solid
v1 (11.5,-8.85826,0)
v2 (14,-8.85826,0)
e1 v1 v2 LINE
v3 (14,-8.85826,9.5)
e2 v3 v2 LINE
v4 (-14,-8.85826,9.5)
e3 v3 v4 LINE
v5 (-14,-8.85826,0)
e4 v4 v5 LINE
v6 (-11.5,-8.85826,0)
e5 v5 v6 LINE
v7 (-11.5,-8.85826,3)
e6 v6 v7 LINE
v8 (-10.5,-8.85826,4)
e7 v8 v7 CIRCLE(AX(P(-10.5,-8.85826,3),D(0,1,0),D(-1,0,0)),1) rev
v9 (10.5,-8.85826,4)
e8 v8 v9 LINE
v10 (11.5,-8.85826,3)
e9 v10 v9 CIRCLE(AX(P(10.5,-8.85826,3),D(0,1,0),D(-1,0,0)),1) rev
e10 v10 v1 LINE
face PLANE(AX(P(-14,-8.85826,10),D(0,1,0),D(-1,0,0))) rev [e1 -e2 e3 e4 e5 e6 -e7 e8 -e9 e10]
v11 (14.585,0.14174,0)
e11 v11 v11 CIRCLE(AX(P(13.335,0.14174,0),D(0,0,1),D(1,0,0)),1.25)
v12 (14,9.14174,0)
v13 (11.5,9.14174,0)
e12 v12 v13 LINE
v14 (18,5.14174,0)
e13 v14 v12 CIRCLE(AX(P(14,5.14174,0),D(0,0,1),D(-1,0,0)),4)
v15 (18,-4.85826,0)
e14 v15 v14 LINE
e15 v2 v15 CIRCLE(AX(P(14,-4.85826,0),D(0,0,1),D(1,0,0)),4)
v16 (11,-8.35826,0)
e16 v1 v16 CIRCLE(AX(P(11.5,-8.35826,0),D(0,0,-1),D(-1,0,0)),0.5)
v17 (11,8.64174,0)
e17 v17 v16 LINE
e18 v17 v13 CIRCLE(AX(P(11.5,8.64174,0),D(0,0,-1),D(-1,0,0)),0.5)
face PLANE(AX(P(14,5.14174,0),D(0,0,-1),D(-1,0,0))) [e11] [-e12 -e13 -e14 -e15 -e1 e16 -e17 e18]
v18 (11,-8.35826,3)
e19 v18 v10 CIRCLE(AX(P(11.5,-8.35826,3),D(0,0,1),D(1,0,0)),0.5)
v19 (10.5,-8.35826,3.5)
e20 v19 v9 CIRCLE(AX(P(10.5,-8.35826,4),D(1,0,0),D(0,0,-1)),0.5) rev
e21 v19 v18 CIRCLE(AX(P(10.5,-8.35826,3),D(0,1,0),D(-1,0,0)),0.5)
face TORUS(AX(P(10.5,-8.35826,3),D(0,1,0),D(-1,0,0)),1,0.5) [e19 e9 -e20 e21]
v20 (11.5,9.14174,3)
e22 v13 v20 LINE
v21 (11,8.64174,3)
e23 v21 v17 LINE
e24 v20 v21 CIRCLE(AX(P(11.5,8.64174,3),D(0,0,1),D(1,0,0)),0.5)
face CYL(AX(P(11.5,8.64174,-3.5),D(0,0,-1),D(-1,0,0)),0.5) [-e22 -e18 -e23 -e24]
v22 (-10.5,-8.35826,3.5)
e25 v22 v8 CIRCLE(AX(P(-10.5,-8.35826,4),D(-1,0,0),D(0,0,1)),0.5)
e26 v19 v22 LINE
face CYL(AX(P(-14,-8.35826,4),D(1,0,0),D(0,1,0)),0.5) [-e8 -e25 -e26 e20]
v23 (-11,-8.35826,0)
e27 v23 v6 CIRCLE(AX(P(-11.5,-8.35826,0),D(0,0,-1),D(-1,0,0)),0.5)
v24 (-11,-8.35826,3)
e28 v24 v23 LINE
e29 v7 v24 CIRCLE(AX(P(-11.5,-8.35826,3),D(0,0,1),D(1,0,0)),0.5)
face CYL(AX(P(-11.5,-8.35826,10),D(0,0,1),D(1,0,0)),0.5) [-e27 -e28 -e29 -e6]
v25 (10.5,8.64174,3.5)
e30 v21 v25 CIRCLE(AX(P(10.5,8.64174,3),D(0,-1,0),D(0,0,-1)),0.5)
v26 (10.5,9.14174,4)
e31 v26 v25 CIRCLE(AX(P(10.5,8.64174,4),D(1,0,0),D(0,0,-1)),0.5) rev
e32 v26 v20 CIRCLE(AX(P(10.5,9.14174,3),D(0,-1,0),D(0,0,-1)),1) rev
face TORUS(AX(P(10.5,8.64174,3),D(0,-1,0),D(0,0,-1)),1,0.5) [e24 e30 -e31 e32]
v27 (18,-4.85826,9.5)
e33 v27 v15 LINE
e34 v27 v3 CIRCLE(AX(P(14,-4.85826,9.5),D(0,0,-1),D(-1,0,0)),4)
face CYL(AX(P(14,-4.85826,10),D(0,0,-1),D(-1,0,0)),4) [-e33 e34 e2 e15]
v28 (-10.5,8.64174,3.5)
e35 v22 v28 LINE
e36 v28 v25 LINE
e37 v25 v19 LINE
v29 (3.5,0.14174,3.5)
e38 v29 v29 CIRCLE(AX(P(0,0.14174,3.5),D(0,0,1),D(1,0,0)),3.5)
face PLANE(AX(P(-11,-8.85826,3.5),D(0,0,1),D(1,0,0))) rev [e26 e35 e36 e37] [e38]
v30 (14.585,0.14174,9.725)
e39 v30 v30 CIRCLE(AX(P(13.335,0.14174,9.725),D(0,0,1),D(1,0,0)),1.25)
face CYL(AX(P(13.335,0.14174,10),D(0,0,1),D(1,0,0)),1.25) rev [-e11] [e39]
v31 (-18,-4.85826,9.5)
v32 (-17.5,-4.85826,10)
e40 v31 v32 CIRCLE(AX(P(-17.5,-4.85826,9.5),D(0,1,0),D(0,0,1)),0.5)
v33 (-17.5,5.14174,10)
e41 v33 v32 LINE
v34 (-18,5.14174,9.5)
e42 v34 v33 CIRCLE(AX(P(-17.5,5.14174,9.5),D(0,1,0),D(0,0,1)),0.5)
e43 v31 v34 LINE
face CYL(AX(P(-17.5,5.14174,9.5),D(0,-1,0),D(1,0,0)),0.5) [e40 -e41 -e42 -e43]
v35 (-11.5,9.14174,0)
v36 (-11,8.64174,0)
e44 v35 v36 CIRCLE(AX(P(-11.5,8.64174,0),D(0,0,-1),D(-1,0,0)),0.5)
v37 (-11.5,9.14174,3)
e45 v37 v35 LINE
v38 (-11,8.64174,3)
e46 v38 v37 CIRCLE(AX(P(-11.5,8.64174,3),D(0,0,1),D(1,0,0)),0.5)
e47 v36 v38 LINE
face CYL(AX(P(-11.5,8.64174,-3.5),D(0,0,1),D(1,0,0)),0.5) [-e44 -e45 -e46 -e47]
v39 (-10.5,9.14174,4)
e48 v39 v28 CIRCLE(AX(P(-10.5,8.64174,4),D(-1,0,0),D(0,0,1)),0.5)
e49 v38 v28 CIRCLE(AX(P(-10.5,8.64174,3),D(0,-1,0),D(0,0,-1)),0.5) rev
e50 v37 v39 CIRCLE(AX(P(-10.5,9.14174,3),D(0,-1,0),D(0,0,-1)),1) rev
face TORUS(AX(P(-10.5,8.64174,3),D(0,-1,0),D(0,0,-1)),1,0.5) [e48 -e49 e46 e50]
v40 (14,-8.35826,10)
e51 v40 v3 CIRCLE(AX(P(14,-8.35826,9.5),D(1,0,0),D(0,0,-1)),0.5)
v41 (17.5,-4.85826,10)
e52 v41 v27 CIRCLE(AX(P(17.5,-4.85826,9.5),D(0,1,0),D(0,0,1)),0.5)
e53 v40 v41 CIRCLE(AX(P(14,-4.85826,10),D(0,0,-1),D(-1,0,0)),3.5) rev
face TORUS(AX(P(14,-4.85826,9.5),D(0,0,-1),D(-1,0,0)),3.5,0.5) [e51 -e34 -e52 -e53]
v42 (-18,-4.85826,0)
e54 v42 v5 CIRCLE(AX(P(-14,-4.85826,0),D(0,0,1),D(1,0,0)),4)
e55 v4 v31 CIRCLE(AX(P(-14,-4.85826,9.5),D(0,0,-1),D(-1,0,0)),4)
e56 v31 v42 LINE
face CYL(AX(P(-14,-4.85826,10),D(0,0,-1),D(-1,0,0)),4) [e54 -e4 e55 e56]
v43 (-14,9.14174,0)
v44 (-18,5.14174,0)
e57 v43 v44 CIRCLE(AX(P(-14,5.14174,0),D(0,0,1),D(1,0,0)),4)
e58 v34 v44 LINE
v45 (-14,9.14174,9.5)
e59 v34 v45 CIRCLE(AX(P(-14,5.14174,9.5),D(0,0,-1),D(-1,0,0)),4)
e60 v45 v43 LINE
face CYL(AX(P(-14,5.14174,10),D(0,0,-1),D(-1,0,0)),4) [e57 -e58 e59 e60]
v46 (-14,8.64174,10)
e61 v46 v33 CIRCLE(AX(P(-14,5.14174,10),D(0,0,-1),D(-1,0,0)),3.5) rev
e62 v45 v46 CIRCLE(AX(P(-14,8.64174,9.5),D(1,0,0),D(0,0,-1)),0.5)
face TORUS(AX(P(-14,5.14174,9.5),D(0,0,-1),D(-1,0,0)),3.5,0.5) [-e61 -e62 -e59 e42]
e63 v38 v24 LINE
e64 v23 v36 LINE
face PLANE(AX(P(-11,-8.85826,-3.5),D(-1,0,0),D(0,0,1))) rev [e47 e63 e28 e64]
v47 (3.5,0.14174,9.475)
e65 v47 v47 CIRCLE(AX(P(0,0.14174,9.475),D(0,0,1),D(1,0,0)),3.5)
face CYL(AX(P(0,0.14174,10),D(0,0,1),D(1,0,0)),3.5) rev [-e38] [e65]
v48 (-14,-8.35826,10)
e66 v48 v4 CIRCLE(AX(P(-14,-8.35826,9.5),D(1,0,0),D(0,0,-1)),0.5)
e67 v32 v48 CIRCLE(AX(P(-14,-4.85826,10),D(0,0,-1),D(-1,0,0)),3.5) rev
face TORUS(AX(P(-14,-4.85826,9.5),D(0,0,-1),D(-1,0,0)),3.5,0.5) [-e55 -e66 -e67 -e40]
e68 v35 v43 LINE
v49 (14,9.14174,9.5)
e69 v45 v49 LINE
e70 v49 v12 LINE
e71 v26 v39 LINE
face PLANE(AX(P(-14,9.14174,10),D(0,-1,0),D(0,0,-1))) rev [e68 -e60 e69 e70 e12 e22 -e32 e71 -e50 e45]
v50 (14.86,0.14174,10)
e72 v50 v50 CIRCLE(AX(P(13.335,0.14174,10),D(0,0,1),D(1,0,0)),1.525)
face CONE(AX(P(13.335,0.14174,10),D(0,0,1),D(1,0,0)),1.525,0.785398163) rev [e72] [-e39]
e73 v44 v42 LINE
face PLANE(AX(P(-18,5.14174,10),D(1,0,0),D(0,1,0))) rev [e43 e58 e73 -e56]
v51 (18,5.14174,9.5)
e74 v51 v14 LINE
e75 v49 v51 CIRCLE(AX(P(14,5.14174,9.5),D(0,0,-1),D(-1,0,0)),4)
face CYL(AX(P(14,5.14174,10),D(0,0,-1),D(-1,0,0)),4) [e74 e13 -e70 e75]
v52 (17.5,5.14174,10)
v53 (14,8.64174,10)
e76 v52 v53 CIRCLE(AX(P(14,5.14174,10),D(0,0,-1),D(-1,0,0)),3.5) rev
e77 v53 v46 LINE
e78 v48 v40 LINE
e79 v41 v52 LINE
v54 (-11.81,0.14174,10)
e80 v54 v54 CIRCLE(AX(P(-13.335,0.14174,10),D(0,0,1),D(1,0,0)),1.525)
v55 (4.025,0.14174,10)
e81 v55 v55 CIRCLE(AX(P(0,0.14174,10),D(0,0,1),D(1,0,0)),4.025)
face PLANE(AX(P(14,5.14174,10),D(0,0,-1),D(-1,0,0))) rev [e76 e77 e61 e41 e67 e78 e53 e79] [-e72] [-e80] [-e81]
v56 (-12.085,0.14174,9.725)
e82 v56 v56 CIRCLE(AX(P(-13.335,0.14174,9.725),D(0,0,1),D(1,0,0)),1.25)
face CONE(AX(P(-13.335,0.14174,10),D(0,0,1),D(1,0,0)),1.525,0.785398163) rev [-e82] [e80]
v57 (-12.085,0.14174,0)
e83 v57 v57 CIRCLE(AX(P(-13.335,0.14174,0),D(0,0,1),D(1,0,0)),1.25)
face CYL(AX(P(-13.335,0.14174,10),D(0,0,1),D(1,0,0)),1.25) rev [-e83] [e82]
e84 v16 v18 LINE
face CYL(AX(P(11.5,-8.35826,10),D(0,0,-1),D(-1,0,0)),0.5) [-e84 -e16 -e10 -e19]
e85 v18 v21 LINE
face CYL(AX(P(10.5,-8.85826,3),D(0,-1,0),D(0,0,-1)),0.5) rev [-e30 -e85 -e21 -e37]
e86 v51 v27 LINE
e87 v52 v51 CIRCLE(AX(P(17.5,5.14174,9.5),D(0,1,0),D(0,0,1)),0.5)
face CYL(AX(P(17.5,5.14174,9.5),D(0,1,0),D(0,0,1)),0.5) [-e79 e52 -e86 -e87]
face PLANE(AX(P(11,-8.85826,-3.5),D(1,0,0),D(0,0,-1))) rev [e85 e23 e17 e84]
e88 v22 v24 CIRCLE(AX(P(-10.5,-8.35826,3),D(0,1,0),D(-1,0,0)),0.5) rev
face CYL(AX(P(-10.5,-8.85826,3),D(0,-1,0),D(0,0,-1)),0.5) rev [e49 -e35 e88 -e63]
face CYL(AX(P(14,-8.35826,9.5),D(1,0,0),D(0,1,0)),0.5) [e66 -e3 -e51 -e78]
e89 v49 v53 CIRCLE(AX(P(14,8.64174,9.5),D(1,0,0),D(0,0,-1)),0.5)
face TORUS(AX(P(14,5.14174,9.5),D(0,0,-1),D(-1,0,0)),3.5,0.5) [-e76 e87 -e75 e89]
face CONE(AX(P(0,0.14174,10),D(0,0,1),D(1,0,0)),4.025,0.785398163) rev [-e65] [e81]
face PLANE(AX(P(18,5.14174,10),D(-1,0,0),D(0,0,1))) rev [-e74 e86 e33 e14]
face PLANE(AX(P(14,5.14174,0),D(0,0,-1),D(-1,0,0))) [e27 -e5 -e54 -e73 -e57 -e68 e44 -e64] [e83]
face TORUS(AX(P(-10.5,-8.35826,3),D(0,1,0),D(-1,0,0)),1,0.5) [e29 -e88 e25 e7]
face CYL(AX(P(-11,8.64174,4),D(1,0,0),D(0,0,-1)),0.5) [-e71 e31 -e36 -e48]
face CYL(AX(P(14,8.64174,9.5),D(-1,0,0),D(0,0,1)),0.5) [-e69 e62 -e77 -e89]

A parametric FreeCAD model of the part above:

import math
import FreeCAD as App
import Part
import Sketcher
from FreeCAD import Vector


def edges_at(feature, points):
    """Names of the edges that pass closest to the given points."""
    edges = feature.Shape.Edges
    near = lambda p: min(range(len(edges)), key=lambda i: edges[i].distToShape(Part.Vertex(*p))[0])
    return sorted({f"Edge{near(p) + 1}" for p in points})


def add_polygon(sketch, points):
    """Adds a closed chain of lines whose ends are joined by coincident constraints."""
    first, n = sketch.GeometryCount, len(points)
    for a, b in zip(points, points[1:] + points[:1]):
        sketch.addGeometry(Part.LineSegment(App.Vector(*a, 0), App.Vector(*b, 0)), False)
    for i in range(n):
        sketch.addConstraint(Sketcher.Constraint("Coincident", first + i, 2, first + (i + 1) % n, 1))

doc = App.newDocument("Part")
params = doc.addObject("Spreadsheet::Sheet", "Params")
for row, (alias, value) in enumerate([
    ("sketch1_radius", "4 mm"),
    ("sketch1_width", "28 mm"),
    ("sketch1_height", "10 mm"),
    ("pad1_length", "10 mm"),
    ("sketch2_width", "22 mm"),
    ("sketch2_height", "7 mm"),
    ("fillet_radius", "0.5 mm"),
    ("sketch3_diameter", "2.5 mm"),
    ("hole_diameter", "2.5 mm"),
    ("hole_csink_diameter", "3.05 mm"),
    ("sketch4_diameter", "7 mm"),
    ("hole2_diameter", "7 mm"),
    ("hole2_csink_diameter", "8.05 mm"),
], start=1):
    params.set(f"A{row}", alias)
    params.set(f"B{row}", "=" + value)
    params.setAlias(f"B{row}", alias)

body = doc.addObject("PartDesign::Body", "Body")

# Sketch on XY plane
sketch1 = body.newObject("Sketcher::SketchObject", "Sketch")
sketch1.AttachmentSupport = (doc.getObject("XY_Plane"), [""])
sketch1.MapMode = "FlatFace"
sketch1.addGeometry(Part.LineSegment(Vector(14, 9.1, 0), Vector(-14, 9.1, 0)), False)
sketch1.addGeometry(Part.ArcOfCircle(Part.Circle(Vector(-14, 5.1, 0), Vector(0, 0, 1), 4), math.radians(90), math.radians(180)), False)
sketch1.addGeometry(Part.LineSegment(Vector(-18, 5.1, 0), Vector(-18, -4.9, 0)), False)
sketch1.addGeometry(Part.ArcOfCircle(Part.Circle(Vector(-14, -4.9, 0), Vector(0, 0, 1), 4), math.radians(-180), math.radians(-90)), False)
sketch1.addGeometry(Part.LineSegment(Vector(-14, -8.9, 0), Vector(14, -8.9, 0)), False)
sketch1.addGeometry(Part.ArcOfCircle(Part.Circle(Vector(14, -4.9, 0), Vector(0, 0, 1), 4), math.radians(-90), math.radians(0)), False)
sketch1.addGeometry(Part.LineSegment(Vector(18, -4.9, 0), Vector(18, 5.1, 0)), False)
sketch1.addGeometry(Part.ArcOfCircle(Part.Circle(Vector(14, 5.1, 0), Vector(0, 0, 1), 4), math.radians(0), math.radians(90)), False)
sketch1.addConstraint(Sketcher.Constraint("Tangent", 0, 2, 1, 1))
sketch1.addConstraint(Sketcher.Constraint("Tangent", 1, 2, 2, 1))
sketch1.addConstraint(Sketcher.Constraint("Tangent", 2, 2, 3, 1))
sketch1.addConstraint(Sketcher.Constraint("Tangent", 3, 2, 4, 1))
sketch1.addConstraint(Sketcher.Constraint("Tangent", 4, 2, 5, 1))
sketch1.addConstraint(Sketcher.Constraint("Tangent", 5, 2, 6, 1))
sketch1.addConstraint(Sketcher.Constraint("Tangent", 6, 2, 7, 1))
sketch1.addConstraint(Sketcher.Constraint("Tangent", 7, 2, 0, 1))
sketch1.addConstraint(Sketcher.Constraint("Horizontal", 0))
sketch1.addConstraint(Sketcher.Constraint("Vertical", 2))
sketch1.addConstraint(Sketcher.Constraint("Horizontal", 4))
sketch1.addConstraint(Sketcher.Constraint("Vertical", 6))
sketch1.addConstraint(Sketcher.Constraint("Equal", 1, 3))
sketch1.addConstraint(Sketcher.Constraint("Equal", 3, 5))
sketch1.addConstraint(Sketcher.Constraint("Equal", 5, 7))
sketch1.addConstraint(Sketcher.Constraint("Radius", 1, 4.0))
sketch1.addConstraint(Sketcher.Constraint("DistanceX", 0, 2, 0, 1, 28.0))
sketch1.addConstraint(Sketcher.Constraint("DistanceY", 2, 2, 2, 1, 10.0))
sketch1.addConstraint(Sketcher.Constraint("DistanceX", 1, 3, -1, 1, 14.0))
sketch1.addConstraint(Sketcher.Constraint("DistanceY", -1, 1, 1, 3, 5.14174))
sketch1.setExpression("Constraints[15]", "Params.sketch1_radius")
sketch1.setExpression("Constraints[16]", "Params.sketch1_width")
sketch1.setExpression("Constraints[17]", "Params.sketch1_height")
pad1 = body.newObject("PartDesign::Pad", "Pad")
pad1.Profile = sketch1
pad1.setExpression("Length", "Params.pad1_length")

# Sketch on XZ plane
sketch2 = body.newObject("Sketcher::SketchObject", "Sketch001")
sketch2.AttachmentSupport = (doc.getObject("XZ_Plane"), [""])
sketch2.MapMode = "FlatFace"
sketch2.AttachmentOffset = App.Placement(Vector(0, 0, -9.14174), App.Rotation())
add_polygon(sketch2, [(-11, -4), (-11, 4), (11, 4), (11, -4)])  # lines 0-3
sketch2.addConstraint(Sketcher.Constraint("Vertical", 0))
sketch2.addConstraint(Sketcher.Constraint("Horizontal", 1))
sketch2.addConstraint(Sketcher.Constraint("Vertical", 2))
sketch2.addConstraint(Sketcher.Constraint("Horizontal", 3))
sketch2.addConstraint(Sketcher.Constraint("Symmetric", 0, 2, 2, 2, -1, 1))
sketch2.addConstraint(Sketcher.Constraint("DistanceX", 1, 1, 1, 2, 22.0))
sketch2.addConstraint(Sketcher.Constraint("DistanceY", 0, 1, 0, 2, 7.0))
sketch2.setExpression("Constraints[9]", "Params.sketch2_width")
sketch2.setExpression("Constraints[10]", "Params.sketch2_height")
pocket1 = body.newObject("PartDesign::Pocket", "Pocket")
pocket1.Profile = sketch2
pocket1.Type = "ThroughAll"
pocket1.Reversed = True
doc.recompute()

fillet = body.newObject("PartDesign::Fillet", "Fillet")
fillet.Base = (pocket1, edges_at(pocket1, [
    (-16.828, 7.97, 10),
    (-18, 0.142, 10),
    (-16.828, -7.687, 10),
    (0, -8.858, 10),
    (16.828, -7.687, 10),
    (11, -8.858, 1.75),
    (18, 0.142, 10),
    (0, -8.858, 3.5),
    (11, 0.142, 3.5),
    (-11, -8.858, 1.75),
    (-11, 0.142, 3.5),
    (-11, 9.142, 1.75),
    (0, 9.142, 3.5),
    (11, 9.142, 1.75),
    (16.828, 7.97, 10),
    (0, 9.142, 10),
]))
fillet.setExpression("Radius", "Params.fillet_radius")

# Sketch on XY plane
sketch3 = body.newObject("Sketcher::SketchObject", "Sketch002")
sketch3.AttachmentSupport = (doc.getObject("XY_Plane"), [""])
sketch3.MapMode = "FlatFace"
sketch3.AttachmentOffset = App.Placement(Vector(0, 0, 10), App.Rotation())
sketch3.addGeometry(Part.Circle(Vector(-13.3, 0.1, 0), Vector(0, 0, 1), 1.2), False)
sketch3.addGeometry(Part.Circle(Vector(13.3, 0.1, 0), Vector(0, 0, 1), 1.2), False)
sketch3.addConstraint(Sketcher.Constraint("Equal", 0, 1))
sketch3.addConstraint(Sketcher.Constraint("Symmetric", 0, 3, 1, 3, -2))
sketch3.addConstraint(Sketcher.Constraint("Diameter", 0, 2.5))
sketch3.addConstraint(Sketcher.Constraint("DistanceX", 0, 3, 1, 3, 26.67))
sketch3.addConstraint(Sketcher.Constraint("DistanceY", -1, 1, 0, 3, 0.14174))
sketch3.setExpression("Constraints[2]", "Params.sketch3_diameter")
doc.recompute()
hole = body.newObject("PartDesign::Hole", "Hole")
hole.Profile = sketch3
hole.ThreadType = "None"
hole.setExpression("Diameter", "Params.hole_diameter")
hole.DepthType = "ThroughAll"
hole.HoleCutType = "Countersink"
hole.setExpression("HoleCutDiameter", "Params.hole_csink_diameter")
hole.HoleCutCountersinkAngle = 90

# Sketch on XY plane
sketch4 = body.newObject("Sketcher::SketchObject", "Sketch003")
sketch4.AttachmentSupport = (doc.getObject("XY_Plane"), [""])
sketch4.MapMode = "FlatFace"
sketch4.AttachmentOffset = App.Placement(Vector(0, 0, 10), App.Rotation())
sketch4.addGeometry(Part.Circle(Vector(0, 0.1, 0), Vector(0, 0, 1), 3.5), False)
sketch4.addConstraint(Sketcher.Constraint("PointOnObject", 0, 3, -2))
sketch4.addConstraint(Sketcher.Constraint("Diameter", 0, 7.0))
sketch4.addConstraint(Sketcher.Constraint("DistanceY", -1, 1, 0, 3, 0.14174))
sketch4.setExpression("Constraints[1]", "Params.sketch4_diameter")
doc.recompute()
hole2 = body.newObject("PartDesign::Hole", "Hole001")
hole2.Profile = sketch4
hole2.ThreadType = "None"
hole2.setExpression("Diameter", "Params.hole2_diameter")
hole2.DepthType = "ThroughAll"
hole2.HoleCutType = "Countersink"
hole2.setExpression("HoleCutDiameter", "Params.hole2_csink_diameter")
hole2.HoleCutCountersinkAngle = 90

doc.recompute()
